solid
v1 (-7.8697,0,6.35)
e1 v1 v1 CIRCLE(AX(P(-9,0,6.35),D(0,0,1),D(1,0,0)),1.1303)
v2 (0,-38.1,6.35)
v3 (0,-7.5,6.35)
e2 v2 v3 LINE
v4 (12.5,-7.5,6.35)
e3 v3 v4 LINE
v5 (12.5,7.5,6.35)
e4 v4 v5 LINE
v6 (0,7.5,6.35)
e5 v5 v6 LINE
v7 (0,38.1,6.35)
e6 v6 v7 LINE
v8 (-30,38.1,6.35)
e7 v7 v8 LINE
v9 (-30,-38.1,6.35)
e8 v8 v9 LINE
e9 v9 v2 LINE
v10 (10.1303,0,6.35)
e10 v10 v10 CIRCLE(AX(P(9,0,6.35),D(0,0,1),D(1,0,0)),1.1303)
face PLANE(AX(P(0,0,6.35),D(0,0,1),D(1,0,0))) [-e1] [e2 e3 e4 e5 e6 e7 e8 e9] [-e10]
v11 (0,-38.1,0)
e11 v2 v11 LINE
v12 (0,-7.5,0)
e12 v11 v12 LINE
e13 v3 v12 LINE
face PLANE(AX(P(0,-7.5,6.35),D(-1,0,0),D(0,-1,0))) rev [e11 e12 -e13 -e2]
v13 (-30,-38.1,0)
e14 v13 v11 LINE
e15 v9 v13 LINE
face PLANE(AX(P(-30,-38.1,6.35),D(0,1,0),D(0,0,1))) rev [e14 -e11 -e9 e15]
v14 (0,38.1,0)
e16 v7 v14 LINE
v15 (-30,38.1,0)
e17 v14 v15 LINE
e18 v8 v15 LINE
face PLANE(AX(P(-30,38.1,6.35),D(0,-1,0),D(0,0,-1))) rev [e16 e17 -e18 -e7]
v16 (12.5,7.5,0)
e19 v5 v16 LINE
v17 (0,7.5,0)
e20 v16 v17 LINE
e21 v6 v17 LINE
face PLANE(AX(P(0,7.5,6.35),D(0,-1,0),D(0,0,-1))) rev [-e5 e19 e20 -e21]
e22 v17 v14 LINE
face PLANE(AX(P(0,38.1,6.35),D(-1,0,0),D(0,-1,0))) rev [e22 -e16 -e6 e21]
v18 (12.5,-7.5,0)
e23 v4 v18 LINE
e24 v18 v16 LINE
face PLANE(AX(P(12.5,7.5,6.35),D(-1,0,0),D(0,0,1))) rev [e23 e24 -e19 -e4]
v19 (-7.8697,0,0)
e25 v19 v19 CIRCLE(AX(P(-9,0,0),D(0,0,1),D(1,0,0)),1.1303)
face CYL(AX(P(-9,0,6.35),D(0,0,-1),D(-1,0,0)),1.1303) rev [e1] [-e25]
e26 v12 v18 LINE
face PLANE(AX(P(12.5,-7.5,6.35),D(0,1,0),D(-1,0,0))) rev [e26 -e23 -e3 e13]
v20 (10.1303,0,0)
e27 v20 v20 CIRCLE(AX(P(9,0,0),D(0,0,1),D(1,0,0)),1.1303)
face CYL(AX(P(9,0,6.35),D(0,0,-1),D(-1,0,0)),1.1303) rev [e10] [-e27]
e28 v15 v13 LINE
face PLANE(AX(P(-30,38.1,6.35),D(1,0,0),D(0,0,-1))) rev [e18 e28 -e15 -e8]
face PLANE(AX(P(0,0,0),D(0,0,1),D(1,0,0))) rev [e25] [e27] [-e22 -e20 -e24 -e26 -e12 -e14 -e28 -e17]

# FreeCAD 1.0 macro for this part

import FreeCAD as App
import Part
import Sketcher

V = App.Vector
Q = App.Units.Quantity


def add_polygon(sketch, points):
    """Adds a closed chain of lines whose ends are joined by coincident constraints."""
    first, n = sketch.GeometryCount, len(points)
    for a, b in zip(points, points[1:] + points[:1]):
        sketch.addGeometry(Part.LineSegment(App.Vector(*a, 0), App.Vector(*b, 0)), False)
    for i in range(n):
        sketch.addConstraint(Sketcher.Constraint("Coincident", first + i, 2, first + (i + 1) % n, 1))

doc = App.newDocument("Part")
params = doc.addObject("Spreadsheet::Sheet", "Params")
for row, (alias, value) in enumerate([
    ("sketch1_width", "30 mm"),
    ("sketch1_height", "15 mm"),
    ("sketch1_width2", "12.5 mm"),
    ("sketch1_height2", "30.6 mm"),
    ("pad1_length", "6.35 mm"),
], start=1):
    params.set(f"A{row}", alias)
    params.set(f"B{row}", "=" + value)
    params.setAlias(f"B{row}", alias)

body = doc.addObject("PartDesign::Body", "Body")

# Sketch on XY plane
sketch1 = doc.addObject("Sketcher::SketchObject", "Sketch")
body.addObject(sketch1)
sketch1.AttachmentSupport = (doc.XY_Plane, [""])
sketch1.MapMode = "FlatFace"
add_polygon(sketch1, [(0, -38.1), (0, -7.5), (12.5, -7.5), (12.5, 7.5), (0, 7.5), (0, 38.1), (-30, 38.1), (-30, -38.1)])  # lines 0-7
sketch1.addGeometry(Part.Circle(V(9, 0, 0), V(0, 0, 1), 1.1), False)  # 8
sketch1.addGeometry(Part.Circle(V(-9, 0, 0), V(0, 0, 1), 1.1), False)  # 9
sketch1.addConstraint(Sketcher.Constraint("Vertical", 0))
sketch1.addConstraint(Sketcher.Constraint("Horizontal", 1))
sketch1.addConstraint(Sketcher.Constraint("Vertical", 2))
sketch1.addConstraint(Sketcher.Constraint("Horizontal", 3))
sketch1.addConstraint(Sketcher.Constraint("Vertical", 4))
sketch1.addConstraint(Sketcher.Constraint("Horizontal", 5))
sketch1.addConstraint(Sketcher.Constraint("Vertical", 6))
sketch1.addConstraint(Sketcher.Constraint("Horizontal", 7))
sketch1.addConstraint(Sketcher.Constraint("Equal", 8, 9))
sketch1.addConstraint(Sketcher.Constraint("Symmetric", 8, 3, 9, 3, -1, 1))
sketch1.addConstraint(Sketcher.Constraint("Symmetric", 0, 2, 3, 2, -1, 1))
sketch1.addConstraint(Sketcher.Constraint("Symmetric", 4, 2, 7, 2, -1))
sketch1.addConstraint(Sketcher.Constraint("PointOnObject", 8, 3, -1))
sketch1.addConstraint(Sketcher.Constraint("DistanceX", 5, 2, 5, 1, Q("30 mm")))
sketch1.addConstraint(Sketcher.Constraint("DistanceY", 2, 1, 2, 2, Q("15 mm")))
sketch1.addConstraint(Sketcher.Constraint("DistanceX", 1, 1, 1, 2, Q("12.5 mm")))
sketch1.addConstraint(Sketcher.Constraint("DistanceY", 0, 1, 0, 2, Q("30.6 mm")))
sketch1.addConstraint(Sketcher.Constraint("DistanceX", -1, 1, 8, 3, Q("9 mm")))
sketch1.addConstraint(Sketcher.Constraint("Diameter", 8, Q("2.2606 mm")))
sketch1.setExpression("Constraints[21]", "Params.sketch1_width")
sketch1.setExpression("Constraints[22]", "Params.sketch1_height")
sketch1.setExpression("Constraints[23]", "Params.sketch1_width2")
sketch1.setExpression("Constraints[24]", "Params.sketch1_height2")
pad1 = doc.addObject("PartDesign::Pad", "Pad")
body.addObject(pad1)
pad1.Profile = sketch1
pad1.setExpression("Length", "Params.pad1_length")

doc.recompute()
